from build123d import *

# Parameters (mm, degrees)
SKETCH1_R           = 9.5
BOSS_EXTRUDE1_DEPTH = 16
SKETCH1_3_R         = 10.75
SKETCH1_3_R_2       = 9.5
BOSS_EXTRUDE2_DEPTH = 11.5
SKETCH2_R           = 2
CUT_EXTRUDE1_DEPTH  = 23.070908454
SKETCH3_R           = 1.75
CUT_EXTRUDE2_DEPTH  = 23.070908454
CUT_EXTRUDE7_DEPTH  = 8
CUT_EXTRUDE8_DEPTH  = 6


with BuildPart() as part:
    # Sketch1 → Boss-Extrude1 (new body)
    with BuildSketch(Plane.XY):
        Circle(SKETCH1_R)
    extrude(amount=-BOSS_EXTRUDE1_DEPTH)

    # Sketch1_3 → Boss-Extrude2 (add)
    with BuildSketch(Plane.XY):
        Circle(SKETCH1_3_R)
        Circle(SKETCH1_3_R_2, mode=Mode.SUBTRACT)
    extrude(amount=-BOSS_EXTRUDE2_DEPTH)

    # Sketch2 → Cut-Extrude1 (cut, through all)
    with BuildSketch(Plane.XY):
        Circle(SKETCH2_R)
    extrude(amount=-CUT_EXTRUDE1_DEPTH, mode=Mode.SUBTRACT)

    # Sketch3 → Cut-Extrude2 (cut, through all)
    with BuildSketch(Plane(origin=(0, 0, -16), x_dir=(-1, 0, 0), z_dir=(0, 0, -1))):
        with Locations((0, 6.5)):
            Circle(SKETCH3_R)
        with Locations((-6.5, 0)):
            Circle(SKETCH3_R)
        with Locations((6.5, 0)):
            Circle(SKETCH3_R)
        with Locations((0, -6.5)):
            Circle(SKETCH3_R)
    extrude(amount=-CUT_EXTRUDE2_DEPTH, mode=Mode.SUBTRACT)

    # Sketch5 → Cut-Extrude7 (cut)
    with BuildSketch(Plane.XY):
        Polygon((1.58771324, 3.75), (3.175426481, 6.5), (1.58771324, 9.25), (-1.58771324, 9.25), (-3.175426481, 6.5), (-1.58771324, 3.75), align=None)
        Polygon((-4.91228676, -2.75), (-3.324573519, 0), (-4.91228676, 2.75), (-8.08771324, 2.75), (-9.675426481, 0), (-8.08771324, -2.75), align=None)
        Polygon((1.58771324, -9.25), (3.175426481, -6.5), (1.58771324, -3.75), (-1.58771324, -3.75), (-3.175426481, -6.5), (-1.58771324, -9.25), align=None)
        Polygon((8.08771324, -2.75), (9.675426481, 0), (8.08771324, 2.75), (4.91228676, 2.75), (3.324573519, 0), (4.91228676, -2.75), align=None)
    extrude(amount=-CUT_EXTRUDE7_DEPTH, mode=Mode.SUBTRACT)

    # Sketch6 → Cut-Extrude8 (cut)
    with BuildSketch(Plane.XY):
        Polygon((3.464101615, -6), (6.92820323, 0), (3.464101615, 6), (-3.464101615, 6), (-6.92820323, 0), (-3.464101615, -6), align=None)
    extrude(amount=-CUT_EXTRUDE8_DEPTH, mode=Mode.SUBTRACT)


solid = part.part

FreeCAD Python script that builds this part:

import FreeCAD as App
import Part
import Sketcher

V = App.Vector
Q = App.Units.Quantity

doc = App.newDocument("Part")
body = doc.addObject("PartDesign::Body", "Body")

sketch1 = body.newObject("Sketcher::SketchObject", "Sketch")
sketch1.AttachmentSupport = (doc.getObject("XY_Plane"), [""])
sketch1.MapMode = "FlatFace"
sketch1.addGeometry(Part.Circle(V(0, 0, 0), V(0, 0, 1), 9.5), False)
sketch1.addConstraint([
    Sketcher.Constraint("Coincident", 0, 3, -1, 1),
    Sketcher.Constraint("Diameter", 0, Q("19 mm")),
])
pad1 = body.newObject("PartDesign::Pad", "Pad")
pad1.Profile = sketch1
pad1.Length = 16
pad1.Reversed = True

sketch2 = body.newObject("Sketcher::SketchObject", "Sketch001")
sketch2.AttachmentSupport = (doc.getObject("XY_Plane"), [""])
sketch2.MapMode = "FlatFace"
sketch2.addGeometry([
    Part.Circle(V(0, 0, 0), V(0, 0, 1), 10.75),
    Part.Circle(V(0, 0, 0), V(0, 0, 1), 9.5),
], False)
sketch2.addConstraint([
    Sketcher.Constraint("Coincident", 0, 3, -1, 1),
    Sketcher.Constraint("Coincident", 1, 3, -1, 1),
    Sketcher.Constraint("Diameter", 1, Q("19 mm")),
    Sketcher.Constraint("Diameter", 0, Q("21.5 mm")),
])
pad2 = body.newObject("PartDesign::Pad", "Pad001")
pad2.Profile = sketch2
pad2.Length = 11.5
pad2.Reversed = True

sketch3 = body.newObject("Sketcher::SketchObject", "Sketch002")
sketch3.AttachmentSupport = (doc.getObject("XY_Plane"), [""])
sketch3.MapMode = "FlatFace"
sketch3.addGeometry(Part.Circle(V(0, 0, 0), V(0, 0, 1), 2), False)
sketch3.addConstraint([
    Sketcher.Constraint("Coincident", 0, 3, -1, 1),
    Sketcher.Constraint("Diameter", 0, Q("4 mm")),
])
pocket1 = body.newObject("PartDesign::Pocket", "Pocket")
pocket1.Profile = sketch3
pocket1.Type = "ThroughAll"

sketch4 = body.newObject("Sketcher::SketchObject", "Sketch003")
sketch4.AttachmentSupport = (doc.getObject("XY_Plane"), [""])
sketch4.MapMode = "FlatFace"
sketch4.AttachmentOffset = App.Placement(V(0, 0, -16), App.Rotation())
sketch4.addGeometry([
    Part.Circle(V(0, 6.5, 0), V(0, 0, 1), 1.75),
    Part.Circle(V(6.5, 0, 0), V(0, 0, 1), 1.75),
    Part.Circle(V(-6.5, 0, 0), V(0, 0, 1), 1.75),
    Part.Circle(V(0, -6.5, 0), V(0, 0, 1), 1.75),
], False)
sketch4.addConstraint([
    Sketcher.Constraint("Equal", 0, 1),
    Sketcher.Constraint("Equal", 1, 2),
    Sketcher.Constraint("Equal", 2, 3),
    Sketcher.Constraint("Symmetric", 1, 3, 2, 3, -1, 1),
    Sketcher.Constraint("Symmetric", 0, 3, 3, 3, -1, 1),
    Sketcher.Constraint("PointOnObject", 0, 3, -2),
    Sketcher.Constraint("PointOnObject", 1, 3, -1),
    Sketcher.Constraint("Diameter", 0, Q("3.5 mm")),
    Sketcher.Constraint("DistanceX", 2, 3, 1, 3, Q("13 mm")),
    Sketcher.Constraint("DistanceY", 3, 3, 0, 3, Q("13 mm")),
])
pocket2 = body.newObject("PartDesign::Pocket", "Pocket001")
pocket2.Profile = sketch4
pocket2.Type = "ThroughAll"
pocket2.Reversed = True

sketch5 = body.newObject("Sketcher::SketchObject", "Sketch004")
sketch5.AttachmentSupport = (doc.getObject("XY_Plane"), [""])
sketch5.MapMode = "FlatFace"
sketch5.addGeometry([
    Part.LineSegment(V(1.587713, 3.75, 0), V(3.175426, 6.5, 0)),
    Part.LineSegment(V(3.175426, 6.5, 0), V(1.587713, 9.25, 0)),
    Part.LineSegment(V(1.587713, 9.25, 0), V(-1.587713, 9.25, 0)),
    Part.LineSegment(V(-1.587713, 9.25, 0), V(-3.175426, 6.5, 0)),
    Part.LineSegment(V(-3.175426, 6.5, 0), V(-1.587713, 3.75, 0)),
    Part.LineSegment(V(-1.587713, 3.75, 0), V(1.587713, 3.75, 0)),
    Part.LineSegment(V(-4.912287, -2.75, 0), V(-3.324574, 0, 0)),
    Part.LineSegment(V(-3.324574, 0, 0), V(-4.912287, 2.75, 0)),
    Part.LineSegment(V(-4.912287, 2.75, 0), V(-8.087713, 2.75, 0)),
    Part.LineSegment(V(-8.087713, 2.75, 0), V(-9.675426, 0, 0)),
    Part.LineSegment(V(-9.675426, 0, 0), V(-8.087713, -2.75, 0)),
    Part.LineSegment(V(-8.087713, -2.75, 0), V(-4.912287, -2.75, 0)),
    Part.LineSegment(V(1.587713, -9.25, 0), V(3.175426, -6.5, 0)),
    Part.LineSegment(V(3.175426, -6.5, 0), V(1.587713, -3.75, 0)),
    Part.LineSegment(V(1.587713, -3.75, 0), V(-1.587713, -3.75, 0)),
    Part.LineSegment(V(-1.587713, -3.75, 0), V(-3.175426, -6.5, 0)),
    Part.LineSegment(V(-3.175426, -6.5, 0), V(-1.587713, -9.25, 0)),
    Part.LineSegment(V(-1.587713, -9.25, 0), V(1.587713, -9.25, 0)),
    Part.LineSegment(V(8.087713, -2.75, 0), V(9.675426, 0, 0)),
    Part.LineSegment(V(9.675426, 0, 0), V(8.087713, 2.75, 0)),
    Part.LineSegment(V(8.087713, 2.75, 0), V(4.912287, 2.75, 0)),
    Part.LineSegment(V(4.912287, 2.75, 0), V(3.324574, 0, 0)),
    Part.LineSegment(V(3.324574, 0, 0), V(4.912287, -2.75, 0)),
    Part.LineSegment(V(4.912287, -2.75, 0), V(8.087713, -2.75, 0)),
], False)
sketch5.addConstraint([
    Sketcher.Constraint("Coincident", 0, 2, 1, 1),
    Sketcher.Constraint("Coincident", 1, 2, 2, 1),
    Sketcher.Constraint("Coincident", 2, 2, 3, 1),
    Sketcher.Constraint("Coincident", 3, 2, 4, 1),
    Sketcher.Constraint("Coincident", 4, 2, 5, 1),
    Sketcher.Constraint("Coincident", 5, 2, 0, 1),
    Sketcher.Constraint("Coincident", 6, 2, 7, 1),
    Sketcher.Constraint("Coincident", 7, 2, 8, 1),
    Sketcher.Constraint("Coincident", 8, 2, 9, 1),
    Sketcher.Constraint("Coincident", 9, 2, 10, 1),
    Sketcher.Constraint("Coincident", 10, 2, 11, 1),
    Sketcher.Constraint("Coincident", 11, 2, 6, 1),
    Sketcher.Constraint("Coincident", 12, 2, 13, 1),
    Sketcher.Constraint("Coincident", 13, 2, 14, 1),
    Sketcher.Constraint("Coincident", 14, 2, 15, 1),
    Sketcher.Constraint("Coincident", 15, 2, 16, 1),
    Sketcher.Constraint("Coincident", 16, 2, 17, 1),
    Sketcher.Constraint("Coincident", 17, 2, 12, 1),
    Sketcher.Constraint("Coincident", 18, 2, 19, 1),
    Sketcher.Constraint("Coincident", 19, 2, 20, 1),
    Sketcher.Constraint("Coincident", 20, 2, 21, 1),
    Sketcher.Constraint("Coincident", 21, 2, 22, 1),
    Sketcher.Constraint("Coincident", 22, 2, 23, 1),
    Sketcher.Constraint("Coincident", 23, 2, 18, 1),
    Sketcher.Constraint("Horizontal", 2),
    Sketcher.Constraint("Horizontal", 5),
    Sketcher.Constraint("Horizontal", 8),
    Sketcher.Constraint("Horizontal", 11),
    Sketcher.Constraint("Horizontal", 14),
    Sketcher.Constraint("Horizontal", 17),
    Sketcher.Constraint("Horizontal", 20),
    Sketcher.Constraint("Horizontal", 23),
    Sketcher.Constraint("Symmetric", 3, 2, 12, 2, -1, 1),
    Sketcher.Constraint("Symmetric", 4, 2, 13, 2, -1, 1),
    Sketcher.Constraint("Symmetric", 0, 2, 15, 2, -1, 1),
    Sketcher.Constraint("Symmetric", 1, 2, 16, 2, -1, 1),
    Sketcher.Constraint("Symmetric", 9, 2, 18, 2, -1, 1),
    Sketcher.Constraint("Symmetric", 10, 2, 19, 2, -1, 1),
    Sketcher.Constraint("Symmetric", 6, 2, 21, 2, -1, 1),
    Sketcher.Constraint("Symmetric", 7, 2, 22, 2, -1, 1),
    Sketcher.Constraint("Symmetric", 0, 2, 3, 2, -2),
    Sketcher.Constraint("Symmetric", 8, 2, 19, 2, -2),
    Sketcher.Constraint("PointOnObject", 6, 2, -1),
    Sketcher.Constraint("PointOnObject", 9, 2, -1),
    Sketcher.Constraint("Parallel", 0, 3),
    Sketcher.Constraint("Parallel", 1, 4),
    Sketcher.Constraint("Parallel", 3, 6),
    Sketcher.Constraint("Parallel", 4, 7),
    Sketcher.Constraint("Parallel", 6, 9),
    Sketcher.Constraint("Parallel", 7, 10),
    Sketcher.Constraint("Parallel", 9, 12),
    Sketcher.Constraint("Parallel", 12, 15),
    Sketcher.Constraint("Parallel", 15, 18),
    Sketcher.Constraint("Parallel", 18, 21),
    Sketcher.Constraint("Vertical", 2, 2, 4, 2),
    Sketcher.Constraint("Equal", 5, 8),
    Sketcher.Constraint("Equal", 4, 6),
    Sketcher.Constraint("Angle", 0, Q("60 deg")),
    Sketcher.Constraint("DistanceY", 7, 2, 4, 2, Q("1 mm")),
    Sketcher.Constraint("DistanceY", -1, 1, 0, 2, Q("6.5 mm")),
    Sketcher.Constraint("DistanceX", 6, 2, 0, 2, Q("6.5 mm")),
    Sketcher.Constraint("DistanceX", 2, 2, 2, 1, Q("3.175426 mm")),
])
pocket3 = body.newObject("PartDesign::Pocket", "Pocket002")
pocket3.Profile = sketch5
pocket3.Length = 8

sketch6 = body.newObject("Sketcher::SketchObject", "Sketch005")
sketch6.AttachmentSupport = (doc.getObject("XY_Plane"), [""])
sketch6.MapMode = "FlatFace"
sketch6.addGeometry([
    Part.LineSegment(V(3.464102, -6, 0), V(6.928203, 0, 0)),
    Part.LineSegment(V(6.928203, 0, 0), V(3.464102, 6, 0)),
    Part.LineSegment(V(3.464102, 6, 0), V(-3.464102, 6, 0)),
    Part.LineSegment(V(-3.464102, 6, 0), V(-6.928203, 0, 0)),
    Part.LineSegment(V(-6.928203, 0, 0), V(-3.464102, -6, 0)),
    Part.LineSegment(V(-3.464102, -6, 0), V(3.464102, -6, 0)),
], False)
sketch6.addConstraint([
    Sketcher.Constraint("Coincident", 0, 2, 1, 1),
    Sketcher.Constraint("Coincident", 1, 2, 2, 1),
    Sketcher.Constraint("Coincident", 2, 2, 3, 1),
    Sketcher.Constraint("Coincident", 3, 2, 4, 1),
    Sketcher.Constraint("Coincident", 4, 2, 5, 1),
    Sketcher.Constraint("Coincident", 5, 2, 0, 1),
    Sketcher.Constraint("Horizontal", 2),
    Sketcher.Constraint("Horizontal", 5),
    Sketcher.Constraint("Symmetric", 0, 2, 3, 2, -1, 1),
    Sketcher.Constraint("Symmetric", 1, 2, 4, 2, -1, 1),
    Sketcher.Constraint("PointOnObject", 0, 2, -1),
    Sketcher.Constraint("Parallel", 0, 3),
    Sketcher.Constraint("Vertical", 2, 2, 4, 2),
    Sketcher.Constraint("Angle", 0, Q("60 deg")),
    Sketcher.Constraint("DistanceY", -1, 1, 1, 2, Q("6 mm")),
    Sketcher.Constraint("DistanceX", -1, 1, 1, 2, Q("3.464102 mm")),
])
pocket4 = body.newObject("PartDesign::Pocket", "Pocket003")
pocket4.Profile = sketch6
pocket4.Length = 6

doc.recompute()
